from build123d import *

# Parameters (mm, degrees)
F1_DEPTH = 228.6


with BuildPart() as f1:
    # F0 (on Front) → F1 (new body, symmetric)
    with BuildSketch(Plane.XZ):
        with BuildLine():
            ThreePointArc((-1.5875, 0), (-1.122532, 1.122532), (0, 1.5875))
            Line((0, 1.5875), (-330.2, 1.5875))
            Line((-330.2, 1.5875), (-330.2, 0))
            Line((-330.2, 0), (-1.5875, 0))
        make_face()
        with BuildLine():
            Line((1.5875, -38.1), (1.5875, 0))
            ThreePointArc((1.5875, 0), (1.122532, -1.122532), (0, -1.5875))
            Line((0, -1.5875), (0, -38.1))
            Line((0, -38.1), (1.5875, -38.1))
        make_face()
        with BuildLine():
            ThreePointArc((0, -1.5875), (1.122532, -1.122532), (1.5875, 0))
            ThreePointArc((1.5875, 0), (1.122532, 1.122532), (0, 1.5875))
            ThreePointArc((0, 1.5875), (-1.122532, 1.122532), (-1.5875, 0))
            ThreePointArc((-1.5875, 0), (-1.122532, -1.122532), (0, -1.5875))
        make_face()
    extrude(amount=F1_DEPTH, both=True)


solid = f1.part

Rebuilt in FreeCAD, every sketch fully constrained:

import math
import FreeCAD as App
import Part
import Sketcher
Q = App.Units.Quantity

doc = App.newDocument("Part")
body = doc.addObject("PartDesign::Body", "Body")

# Sketch on XZ plane
sketch1 = doc.addObject("Sketcher::SketchObject", "Sketch")
body.addObject(sketch1)
sketch1.AttachmentSupport = (doc.XZ_Plane, [""])
sketch1.MapMode = "FlatFace"
sketch1.addGeometry([
    Part.LineSegment(App.Vector(0, 1.6, 0), App.Vector(-330.2, 1.6, 0)),  # 0
    Part.LineSegment(App.Vector(-330.2, 1.6, 0), App.Vector(-330.2, 0, 0)),  # 1
    Part.LineSegment(App.Vector(-330.2, 0, 0), App.Vector(-1.6, 0, 0)),  # 2
    Part.ArcOfCircle(Part.Circle(App.Vector(0, 0, 0), App.Vector(0, 0, 1), 1.6), math.radians(-180), math.radians(-90)),  # 3
    Part.LineSegment(App.Vector(0, -1.6, 0), App.Vector(0, -38.1, 0)),  # 4
    Part.LineSegment(App.Vector(0, -38.1, 0), App.Vector(1.6, -38.1, 0)),  # 5
    Part.LineSegment(App.Vector(1.6, -38.1, 0), App.Vector(1.6, 0, 0)),  # 6
    Part.ArcOfCircle(Part.Circle(App.Vector(0, 0, 0), App.Vector(0, 0, 1), 1.6), math.radians(0), math.radians(90)),  # 7
], False)
sketch1.addConstraint([
    Sketcher.Constraint("Coincident", 0, 2, 1, 1),
    Sketcher.Constraint("Coincident", 1, 2, 2, 1),
    Sketcher.Constraint("Coincident", 2, 2, 3, 1),
    Sketcher.Constraint("Coincident", 3, 2, 4, 1),
    Sketcher.Constraint("Coincident", 4, 2, 5, 1),
    Sketcher.Constraint("Coincident", 5, 2, 6, 1),
    Sketcher.Constraint("Tangent", 6, 2, 7, 1),
    Sketcher.Constraint("Tangent", 7, 2, 0, 1),
    Sketcher.Constraint("Horizontal", 0),
    Sketcher.Constraint("Vertical", 1),
    Sketcher.Constraint("Horizontal", 2),
    Sketcher.Constraint("Vertical", 4),
    Sketcher.Constraint("Horizontal", 5),
    Sketcher.Constraint("Vertical", 6),
    Sketcher.Constraint("Coincident", 3, 3, -1, 1),
    Sketcher.Constraint("Coincident", 7, 3, -1, 1),
    Sketcher.Constraint("Equal", 3, 7),
    Sketcher.Constraint("PointOnObject", 1, 2, -1),
    Sketcher.Constraint("PointOnObject", 3, 2, -2),
    Sketcher.Constraint("DistanceX", 0, 2, 0, 1, Q("13 in")),
    Sketcher.Constraint("DistanceY", 6, 1, 6, 2, Q("1.5 in")),
    Sketcher.Constraint("Radius", 3, Q("0.0625 in")),
])
pad1 = doc.addObject("PartDesign::Pad", "Pad")
body.addObject(pad1)
pad1.Profile = sketch1
pad1.Length = Q("18 in")
pad1.Midplane = True

doc.recompute()
